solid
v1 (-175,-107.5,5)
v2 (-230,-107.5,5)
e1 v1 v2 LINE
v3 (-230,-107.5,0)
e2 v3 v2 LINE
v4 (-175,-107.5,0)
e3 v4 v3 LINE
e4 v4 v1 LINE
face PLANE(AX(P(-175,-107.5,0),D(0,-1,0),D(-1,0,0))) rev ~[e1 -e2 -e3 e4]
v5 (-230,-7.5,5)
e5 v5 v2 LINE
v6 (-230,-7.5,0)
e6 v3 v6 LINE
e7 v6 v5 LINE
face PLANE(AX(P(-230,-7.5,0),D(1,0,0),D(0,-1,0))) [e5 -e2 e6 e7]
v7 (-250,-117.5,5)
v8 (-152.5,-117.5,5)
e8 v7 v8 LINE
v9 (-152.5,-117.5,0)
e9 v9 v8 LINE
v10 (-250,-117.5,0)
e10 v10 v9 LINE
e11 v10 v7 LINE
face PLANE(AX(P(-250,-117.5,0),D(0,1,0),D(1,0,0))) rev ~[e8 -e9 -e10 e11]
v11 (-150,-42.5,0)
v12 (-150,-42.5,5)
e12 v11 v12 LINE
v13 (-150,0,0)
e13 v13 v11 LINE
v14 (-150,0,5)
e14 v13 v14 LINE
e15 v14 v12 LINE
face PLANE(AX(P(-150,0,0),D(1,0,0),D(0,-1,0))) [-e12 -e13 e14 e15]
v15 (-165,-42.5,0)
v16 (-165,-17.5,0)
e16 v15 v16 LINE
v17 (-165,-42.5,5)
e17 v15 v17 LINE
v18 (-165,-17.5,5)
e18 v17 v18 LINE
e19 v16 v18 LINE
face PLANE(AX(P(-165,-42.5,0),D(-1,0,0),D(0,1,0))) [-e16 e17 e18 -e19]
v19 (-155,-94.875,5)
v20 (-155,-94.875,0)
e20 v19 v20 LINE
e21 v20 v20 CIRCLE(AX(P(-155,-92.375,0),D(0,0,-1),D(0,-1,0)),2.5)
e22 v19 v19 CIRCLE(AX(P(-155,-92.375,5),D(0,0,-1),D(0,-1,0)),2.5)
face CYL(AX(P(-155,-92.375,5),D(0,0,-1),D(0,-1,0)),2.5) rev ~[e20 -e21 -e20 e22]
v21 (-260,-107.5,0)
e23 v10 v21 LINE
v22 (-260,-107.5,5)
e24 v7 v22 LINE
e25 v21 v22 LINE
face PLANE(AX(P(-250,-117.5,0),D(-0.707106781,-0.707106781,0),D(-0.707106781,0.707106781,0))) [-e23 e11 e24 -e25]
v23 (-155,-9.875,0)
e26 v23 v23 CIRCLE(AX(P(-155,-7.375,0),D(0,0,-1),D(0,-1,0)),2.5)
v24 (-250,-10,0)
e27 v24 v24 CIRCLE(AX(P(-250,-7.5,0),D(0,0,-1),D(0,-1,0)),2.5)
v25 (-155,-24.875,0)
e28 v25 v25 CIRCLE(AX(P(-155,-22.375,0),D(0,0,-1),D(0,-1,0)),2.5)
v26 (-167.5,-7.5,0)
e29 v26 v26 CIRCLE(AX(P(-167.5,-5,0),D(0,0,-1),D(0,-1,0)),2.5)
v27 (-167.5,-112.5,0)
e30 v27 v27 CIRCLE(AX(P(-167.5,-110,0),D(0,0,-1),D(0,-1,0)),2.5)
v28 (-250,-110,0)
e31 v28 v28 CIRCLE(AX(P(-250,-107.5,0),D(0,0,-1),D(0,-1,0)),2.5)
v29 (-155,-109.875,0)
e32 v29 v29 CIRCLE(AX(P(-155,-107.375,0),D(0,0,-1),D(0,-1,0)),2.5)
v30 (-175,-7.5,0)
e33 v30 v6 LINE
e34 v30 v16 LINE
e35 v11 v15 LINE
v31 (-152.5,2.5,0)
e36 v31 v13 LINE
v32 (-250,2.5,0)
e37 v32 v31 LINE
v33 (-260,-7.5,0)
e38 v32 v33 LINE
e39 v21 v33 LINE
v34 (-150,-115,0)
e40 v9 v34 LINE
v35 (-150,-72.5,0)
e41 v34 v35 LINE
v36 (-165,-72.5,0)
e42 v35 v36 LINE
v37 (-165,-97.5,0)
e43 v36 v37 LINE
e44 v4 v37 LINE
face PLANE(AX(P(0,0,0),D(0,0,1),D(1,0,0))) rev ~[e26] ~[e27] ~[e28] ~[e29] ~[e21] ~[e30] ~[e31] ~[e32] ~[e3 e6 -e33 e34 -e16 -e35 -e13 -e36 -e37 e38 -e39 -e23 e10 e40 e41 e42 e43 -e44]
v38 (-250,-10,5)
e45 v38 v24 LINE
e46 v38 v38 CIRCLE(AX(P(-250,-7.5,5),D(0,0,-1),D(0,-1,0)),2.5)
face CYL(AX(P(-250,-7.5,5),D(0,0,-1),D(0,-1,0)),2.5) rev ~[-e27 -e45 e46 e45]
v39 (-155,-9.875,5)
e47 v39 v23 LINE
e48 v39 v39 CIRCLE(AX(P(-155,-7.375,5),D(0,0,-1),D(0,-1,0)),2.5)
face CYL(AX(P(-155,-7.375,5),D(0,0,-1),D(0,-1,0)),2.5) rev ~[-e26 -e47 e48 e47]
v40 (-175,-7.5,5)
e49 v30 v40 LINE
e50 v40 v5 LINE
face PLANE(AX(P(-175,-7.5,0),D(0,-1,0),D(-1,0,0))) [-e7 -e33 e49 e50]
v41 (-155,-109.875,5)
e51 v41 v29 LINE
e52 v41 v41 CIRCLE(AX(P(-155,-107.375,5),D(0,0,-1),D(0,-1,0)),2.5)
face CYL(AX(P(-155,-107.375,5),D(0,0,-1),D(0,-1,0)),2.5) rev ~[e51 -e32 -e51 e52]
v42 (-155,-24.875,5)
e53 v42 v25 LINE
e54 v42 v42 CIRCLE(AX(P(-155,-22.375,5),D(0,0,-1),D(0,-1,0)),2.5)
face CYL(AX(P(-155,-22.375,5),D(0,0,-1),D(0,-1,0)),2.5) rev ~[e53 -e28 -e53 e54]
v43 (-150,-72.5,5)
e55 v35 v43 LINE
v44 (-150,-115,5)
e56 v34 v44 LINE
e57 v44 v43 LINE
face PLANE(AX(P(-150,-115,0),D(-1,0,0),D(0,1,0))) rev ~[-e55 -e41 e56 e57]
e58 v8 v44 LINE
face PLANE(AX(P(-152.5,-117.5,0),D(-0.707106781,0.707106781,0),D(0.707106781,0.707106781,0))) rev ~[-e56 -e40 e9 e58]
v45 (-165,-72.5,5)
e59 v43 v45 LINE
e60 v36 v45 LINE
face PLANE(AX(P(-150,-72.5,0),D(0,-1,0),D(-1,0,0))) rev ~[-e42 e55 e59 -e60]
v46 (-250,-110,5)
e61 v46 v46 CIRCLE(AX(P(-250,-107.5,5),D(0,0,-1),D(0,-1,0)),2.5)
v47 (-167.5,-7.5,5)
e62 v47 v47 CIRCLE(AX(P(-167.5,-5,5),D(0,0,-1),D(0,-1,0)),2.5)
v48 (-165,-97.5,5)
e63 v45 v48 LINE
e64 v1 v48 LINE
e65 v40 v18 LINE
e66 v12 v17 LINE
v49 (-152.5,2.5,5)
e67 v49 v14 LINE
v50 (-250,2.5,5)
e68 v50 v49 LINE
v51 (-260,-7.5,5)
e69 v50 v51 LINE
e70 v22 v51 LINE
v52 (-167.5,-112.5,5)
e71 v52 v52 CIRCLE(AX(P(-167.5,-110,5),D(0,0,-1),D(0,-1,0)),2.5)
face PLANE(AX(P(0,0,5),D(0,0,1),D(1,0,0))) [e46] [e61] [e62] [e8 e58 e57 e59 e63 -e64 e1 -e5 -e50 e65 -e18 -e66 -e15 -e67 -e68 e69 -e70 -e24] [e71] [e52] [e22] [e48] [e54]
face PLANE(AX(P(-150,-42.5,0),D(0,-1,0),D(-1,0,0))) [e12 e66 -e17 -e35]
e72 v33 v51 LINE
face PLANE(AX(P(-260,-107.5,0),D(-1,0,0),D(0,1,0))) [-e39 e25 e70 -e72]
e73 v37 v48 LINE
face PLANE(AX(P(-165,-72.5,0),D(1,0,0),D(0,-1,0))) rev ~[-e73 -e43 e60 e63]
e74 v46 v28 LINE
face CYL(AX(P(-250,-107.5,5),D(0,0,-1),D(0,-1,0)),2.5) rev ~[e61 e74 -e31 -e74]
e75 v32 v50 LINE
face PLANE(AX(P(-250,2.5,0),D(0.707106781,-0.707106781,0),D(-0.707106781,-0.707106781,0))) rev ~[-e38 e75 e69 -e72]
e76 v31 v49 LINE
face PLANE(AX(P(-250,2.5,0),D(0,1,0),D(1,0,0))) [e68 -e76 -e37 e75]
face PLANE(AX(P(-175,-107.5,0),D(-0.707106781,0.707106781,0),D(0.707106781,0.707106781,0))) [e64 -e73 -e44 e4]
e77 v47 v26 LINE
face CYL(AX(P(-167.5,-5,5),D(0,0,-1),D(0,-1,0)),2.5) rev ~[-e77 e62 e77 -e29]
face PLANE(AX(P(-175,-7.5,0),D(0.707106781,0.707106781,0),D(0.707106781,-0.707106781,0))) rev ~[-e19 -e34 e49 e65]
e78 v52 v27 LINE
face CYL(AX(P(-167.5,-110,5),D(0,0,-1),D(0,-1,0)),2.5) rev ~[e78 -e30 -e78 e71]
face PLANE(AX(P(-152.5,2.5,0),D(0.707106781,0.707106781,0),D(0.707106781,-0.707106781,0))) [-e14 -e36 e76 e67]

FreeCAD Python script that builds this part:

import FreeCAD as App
import Part
import Sketcher

V = App.Vector
Q = App.Units.Quantity

doc = App.newDocument("Part")
body = doc.addObject("PartDesign::Body", "Body")

# Sketch on XY plane
sketch1 = body.newObject("Sketcher::SketchObject", "Sketch")
sketch1.AttachmentSupport = (doc.getObject("XY_Plane"), [""])
sketch1.MapMode = "FlatFace"
sketch1.addGeometry([
    Part.LineSegment(V(-230, -7.5, 0), V(-175, -7.5, 0)),  # 0
    Part.LineSegment(V(-175, -7.5, 0), V(-165, -17.5, 0)),  # 1
    Part.LineSegment(V(-165, -17.5, 0), V(-165, -42.5, 0)),  # 2
    Part.LineSegment(V(-165, -42.5, 0), V(-150, -42.5, 0)),  # 3
    Part.LineSegment(V(-150, -42.5, 0), V(-150, 0, 0)),  # 4
    Part.LineSegment(V(-150, 0, 0), V(-152.5, 2.5, 0)),  # 5
    Part.LineSegment(V(-152.5, 2.5, 0), V(-250, 2.5, 0)),  # 6
    Part.LineSegment(V(-250, 2.5, 0), V(-260, -7.5, 0)),  # 7
    Part.LineSegment(V(-260, -7.5, 0), V(-260, -107.5, 0)),  # 8
    Part.LineSegment(V(-260, -107.5, 0), V(-250, -117.5, 0)),  # 9
    Part.LineSegment(V(-250, -117.5, 0), V(-152.5, -117.5, 0)),  # 10
    Part.LineSegment(V(-152.5, -117.5, 0), V(-150, -115, 0)),  # 11
    Part.LineSegment(V(-150, -115, 0), V(-150, -72.5, 0)),  # 12
    Part.LineSegment(V(-150, -72.5, 0), V(-165, -72.5, 0)),  # 13
    Part.LineSegment(V(-165, -72.5, 0), V(-165, -97.5, 0)),  # 14
    Part.LineSegment(V(-165, -97.5, 0), V(-175, -107.5, 0)),  # 15
    Part.LineSegment(V(-175, -107.5, 0), V(-230, -107.5, 0)),  # 16
    Part.LineSegment(V(-230, -107.5, 0), V(-230, -7.5, 0)),  # 17
], False)
sketch1.addConstraint([
    Sketcher.Constraint("Coincident", 0, 2, 1, 1),
    Sketcher.Constraint("Coincident", 1, 2, 2, 1),
    Sketcher.Constraint("Coincident", 2, 2, 3, 1),
    Sketcher.Constraint("Coincident", 3, 2, 4, 1),
    Sketcher.Constraint("Coincident", 4, 2, 5, 1),
    Sketcher.Constraint("Coincident", 5, 2, 6, 1),
    Sketcher.Constraint("Coincident", 6, 2, 7, 1),
    Sketcher.Constraint("Coincident", 7, 2, 8, 1),
    Sketcher.Constraint("Coincident", 8, 2, 9, 1),
    Sketcher.Constraint("Coincident", 9, 2, 10, 1),
    Sketcher.Constraint("Coincident", 10, 2, 11, 1),
    Sketcher.Constraint("Coincident", 11, 2, 12, 1),
    Sketcher.Constraint("Coincident", 12, 2, 13, 1),
    Sketcher.Constraint("Coincident", 13, 2, 14, 1),
    Sketcher.Constraint("Coincident", 14, 2, 15, 1),
    Sketcher.Constraint("Coincident", 15, 2, 16, 1),
    Sketcher.Constraint("Coincident", 16, 2, 17, 1),
    Sketcher.Constraint("Coincident", 17, 2, 0, 1),
    Sketcher.Constraint("Horizontal", 0),
    Sketcher.Constraint("Vertical", 2),
    Sketcher.Constraint("Horizontal", 3),
    Sketcher.Constraint("Vertical", 4),
    Sketcher.Constraint("Horizontal", 6),
    Sketcher.Constraint("Vertical", 8),
    Sketcher.Constraint("Horizontal", 10),
    Sketcher.Constraint("Vertical", 12),
    Sketcher.Constraint("Horizontal", 13),
    Sketcher.Constraint("Vertical", 14),
    Sketcher.Constraint("Horizontal", 16),
    Sketcher.Constraint("Vertical", 17),
    Sketcher.Constraint("PointOnObject", 4, 2, -1),
    Sketcher.Constraint("Parallel", 1, 5),
    Sketcher.Constraint("Perpendicular", 5, 7),
    Sketcher.Constraint("Perpendicular", 7, 9),
    Sketcher.Constraint("Perpendicular", 9, 11),
    Sketcher.Constraint("Parallel", 11, 15),
    Sketcher.Constraint("Horizontal", 0, 2, 7, 2),
    Sketcher.Constraint("Horizontal", 8, 2, 15, 2),
    Sketcher.Constraint("Vertical", 6, 2, 9, 2),
    Sketcher.Constraint("Vertical", 5, 2, 10, 2),
    Sketcher.Constraint("Vertical", 4, 2, 11, 2),
    Sketcher.Constraint("Vertical", 2, 2, 13, 2),
    Sketcher.Constraint("Vertical", 0, 2, 15, 2),
    Sketcher.Constraint("Equal", 4, 12),
    Sketcher.Constraint("Equal", 2, 14),
    Sketcher.Constraint("Equal", 1, 7),
    Sketcher.Constraint("DistanceX", 3, 1, 3, 2, Q("15 mm")),
    Sketcher.Constraint("DistanceX", 0, 2, 1, 2, Q("10 mm")),
    Sketcher.Constraint("DistanceY", 3, 2, 5, 2, Q("45 mm")),
    Sketcher.Constraint("DistanceY", 8, 2, 2, 2, Q("65 mm")),
    Sketcher.Constraint("DistanceX", 8, 2, 16, 2, Q("30 mm")),
    Sketcher.Constraint("DistanceX", 16, 2, 14, 2, Q("65 mm")),
    Sketcher.Constraint("DistanceY", 0, 2, -1, 1, Q("7.5 mm")),
    Sketcher.Constraint("DistanceX", 0, 2, -1, 1, Q("175 mm")),
])
pad1 = body.newObject("PartDesign::Pad", "Pad")
pad1.Profile = sketch1
pad1.Length = 5

# Sketch on XY plane
sketch2 = body.newObject("Sketcher::SketchObject", "Sketch001")
sketch2.AttachmentSupport = (doc.getObject("XY_Plane"), [""])
sketch2.MapMode = "FlatFace"
sketch2.AttachmentOffset = App.Placement(V(0, 0, 5), App.Rotation())
sketch2.addGeometry([
    Part.Circle(V(-155, -7.375, 0), V(0, 0, 1), 2.5),
    Part.Circle(V(-155, -22.375, 0), V(0, 0, 1), 2.5),
    Part.Circle(V(-155, -92.375, 0), V(0, 0, 1), 2.5),
    Part.Circle(V(-155, -107.375, 0), V(0, 0, 1), 2.5),
], False)
sketch2.addConstraint([
    Sketcher.Constraint("Equal", 0, 1),
    Sketcher.Constraint("Equal", 1, 2),
    Sketcher.Constraint("Equal", 2, 3),
    Sketcher.Constraint("Vertical", 0, 3, 1, 3),
    Sketcher.Constraint("Vertical", 1, 3, 2, 3),
    Sketcher.Constraint("Vertical", 2, 3, 3, 3),
    Sketcher.Constraint("Diameter", 0, Q("5 mm")),
    Sketcher.Constraint("DistanceX", 0, 3, -1, 1, Q("155 mm")),
    Sketcher.Constraint("DistanceY", 1, 3, 0, 3, Q("15 mm")),
    Sketcher.Constraint("DistanceY", 2, 3, 1, 3, Q("70 mm")),
    Sketcher.Constraint("DistanceY", 3, 3, 2, 3, Q("15 mm")),
    Sketcher.Constraint("DistanceY", 0, 3, -1, 1, Q("7.375 mm")),
])
doc.recompute()
hole = body.newObject("PartDesign::Hole", "Hole")
hole.Profile = sketch2
hole.ThreadType = "None"
hole.Diameter = 5
hole.DepthType = "ThroughAll"

# Sketch on XY plane
sketch3 = body.newObject("Sketcher::SketchObject", "Sketch002")
sketch3.AttachmentSupport = (doc.getObject("XY_Plane"), [""])
sketch3.MapMode = "FlatFace"
sketch3.AttachmentOffset = App.Placement(V(0, 0, 5), App.Rotation())
sketch3.addGeometry([
    Part.Circle(V(-167.5, -5, 0), V(0, 0, 1), 2.5),
    Part.Circle(V(-167.5, -110, 0), V(0, 0, 1), 2.5),
    Part.Circle(V(-250, -107.5, 0), V(0, 0, 1), 2.5),
    Part.Circle(V(-250, -7.5, 0), V(0, 0, 1), 2.5),
], False)
sketch3.addConstraint([
    Sketcher.Constraint("Equal", 0, 1),
    Sketcher.Constraint("Equal", 1, 2),
    Sketcher.Constraint("Equal", 2, 3),
    Sketcher.Constraint("Vertical", 0, 3, 1, 3),
    Sketcher.Constraint("Vertical", 2, 3, 3, 3),
    Sketcher.Constraint("Diameter", 0, Q("5 mm")),
    Sketcher.Constraint("DistanceY", 0, 3, -1, 1, Q("5 mm")),
    Sketcher.Constraint("DistanceY", 1, 3, -1, 1, Q("110 mm")),
    Sketcher.Constraint("DistanceX", 2, 3, -1, 1, Q("250 mm")),
    Sketcher.Constraint("DistanceY", 2, 3, 3, 3, Q("100 mm")),
    Sketcher.Constraint("DistanceX", 0, 3, -1, 1, Q("167.5 mm")),
    Sketcher.Constraint("DistanceY", 2, 3, -1, 1, Q("107.5 mm")),
])
doc.recompute()
hole2 = body.newObject("PartDesign::Hole", "Hole001")
hole2.Profile = sketch3
hole2.ThreadType = "None"
hole2.Diameter = 5
hole2.DepthType = "ThroughAll"

doc.recompute()
